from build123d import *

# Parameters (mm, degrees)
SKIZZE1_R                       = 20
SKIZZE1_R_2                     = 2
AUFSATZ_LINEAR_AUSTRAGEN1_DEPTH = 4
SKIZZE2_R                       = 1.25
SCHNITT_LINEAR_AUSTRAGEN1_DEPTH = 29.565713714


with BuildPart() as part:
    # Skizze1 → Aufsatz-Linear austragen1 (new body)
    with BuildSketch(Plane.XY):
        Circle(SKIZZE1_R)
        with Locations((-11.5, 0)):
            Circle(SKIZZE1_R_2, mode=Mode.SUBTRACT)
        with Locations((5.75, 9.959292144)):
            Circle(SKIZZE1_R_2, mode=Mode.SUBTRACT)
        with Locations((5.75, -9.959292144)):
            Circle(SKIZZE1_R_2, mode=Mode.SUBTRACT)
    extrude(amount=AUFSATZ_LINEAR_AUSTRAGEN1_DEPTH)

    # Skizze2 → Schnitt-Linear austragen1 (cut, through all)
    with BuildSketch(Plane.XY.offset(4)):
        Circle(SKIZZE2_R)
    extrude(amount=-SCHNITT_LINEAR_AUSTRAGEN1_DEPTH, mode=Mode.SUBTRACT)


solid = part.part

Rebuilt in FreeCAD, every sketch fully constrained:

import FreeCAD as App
import Part
import Sketcher
Q = App.Units.Quantity

doc = App.newDocument("Part")
body = doc.addObject("PartDesign::Body", "Body")

# Sketch on XY plane
sketch1 = body.newObject("Sketcher::SketchObject", "Sketch")
sketch1.AttachmentSupport = (doc.getObject("XY_Plane"), [""])
sketch1.MapMode = "FlatFace"
sketch1.addGeometry(Part.Circle(App.Vector(0, 0, 0), App.Vector(0, 0, 1), 20), False)
sketch1.addGeometry(Part.Circle(App.Vector(5.75, -9.959292, 0), App.Vector(0, 0, 1), 2), False)
sketch1.addGeometry(Part.Circle(App.Vector(-11.5, 0, 0), App.Vector(0, 0, 1), 2), False)
sketch1.addGeometry(Part.Circle(App.Vector(5.75, 9.959292, 0), App.Vector(0, 0, 1), 2), False)
sketch1.addConstraint(Sketcher.Constraint("Coincident", 0, 3, -1, 1))
sketch1.addConstraint(Sketcher.Constraint("Equal", 1, 2))
sketch1.addConstraint(Sketcher.Constraint("Equal", 2, 3))
sketch1.addConstraint(Sketcher.Constraint("Symmetric", 1, 3, 3, 3, -1))
sketch1.addConstraint(Sketcher.Constraint("PointOnObject", 2, 3, -1))
sketch1.addConstraint(Sketcher.Constraint("Diameter", 0, Q("40 mm")))
sketch1.addConstraint(Sketcher.Constraint("Diameter", 1, Q("4 mm")))
sketch1.addConstraint(Sketcher.Constraint("DistanceX", 2, 3, -1, 1, Q("11.5 mm")))
sketch1.addConstraint(Sketcher.Constraint("DistanceX", -1, 1, 1, 3, Q("5.75 mm")))
sketch1.addConstraint(Sketcher.Constraint("DistanceY", 1, 3, -1, 1, Q("9.959292 mm")))
pad1 = body.newObject("PartDesign::Pad", "Pad")
pad1.Profile = sketch1
pad1.Length = 4

# Sketch on XY plane
sketch2 = body.newObject("Sketcher::SketchObject", "Sketch001")
sketch2.AttachmentSupport = (doc.getObject("XY_Plane"), [""])
sketch2.MapMode = "FlatFace"
sketch2.AttachmentOffset = App.Placement(App.Vector(0, 0, 4), App.Rotation())
sketch2.addGeometry(Part.Circle(App.Vector(0, 0, 0), App.Vector(0, 0, 1), 1.25), False)
sketch2.addConstraint(Sketcher.Constraint("Coincident", 0, 3, -1, 1))
sketch2.addConstraint(Sketcher.Constraint("Diameter", 0, Q("2.5 mm")))
pocket1 = body.newObject("PartDesign::Pocket", "Pocket")
pocket1.Profile = sketch2
pocket1.Type = "ThroughAll"

doc.recompute()
